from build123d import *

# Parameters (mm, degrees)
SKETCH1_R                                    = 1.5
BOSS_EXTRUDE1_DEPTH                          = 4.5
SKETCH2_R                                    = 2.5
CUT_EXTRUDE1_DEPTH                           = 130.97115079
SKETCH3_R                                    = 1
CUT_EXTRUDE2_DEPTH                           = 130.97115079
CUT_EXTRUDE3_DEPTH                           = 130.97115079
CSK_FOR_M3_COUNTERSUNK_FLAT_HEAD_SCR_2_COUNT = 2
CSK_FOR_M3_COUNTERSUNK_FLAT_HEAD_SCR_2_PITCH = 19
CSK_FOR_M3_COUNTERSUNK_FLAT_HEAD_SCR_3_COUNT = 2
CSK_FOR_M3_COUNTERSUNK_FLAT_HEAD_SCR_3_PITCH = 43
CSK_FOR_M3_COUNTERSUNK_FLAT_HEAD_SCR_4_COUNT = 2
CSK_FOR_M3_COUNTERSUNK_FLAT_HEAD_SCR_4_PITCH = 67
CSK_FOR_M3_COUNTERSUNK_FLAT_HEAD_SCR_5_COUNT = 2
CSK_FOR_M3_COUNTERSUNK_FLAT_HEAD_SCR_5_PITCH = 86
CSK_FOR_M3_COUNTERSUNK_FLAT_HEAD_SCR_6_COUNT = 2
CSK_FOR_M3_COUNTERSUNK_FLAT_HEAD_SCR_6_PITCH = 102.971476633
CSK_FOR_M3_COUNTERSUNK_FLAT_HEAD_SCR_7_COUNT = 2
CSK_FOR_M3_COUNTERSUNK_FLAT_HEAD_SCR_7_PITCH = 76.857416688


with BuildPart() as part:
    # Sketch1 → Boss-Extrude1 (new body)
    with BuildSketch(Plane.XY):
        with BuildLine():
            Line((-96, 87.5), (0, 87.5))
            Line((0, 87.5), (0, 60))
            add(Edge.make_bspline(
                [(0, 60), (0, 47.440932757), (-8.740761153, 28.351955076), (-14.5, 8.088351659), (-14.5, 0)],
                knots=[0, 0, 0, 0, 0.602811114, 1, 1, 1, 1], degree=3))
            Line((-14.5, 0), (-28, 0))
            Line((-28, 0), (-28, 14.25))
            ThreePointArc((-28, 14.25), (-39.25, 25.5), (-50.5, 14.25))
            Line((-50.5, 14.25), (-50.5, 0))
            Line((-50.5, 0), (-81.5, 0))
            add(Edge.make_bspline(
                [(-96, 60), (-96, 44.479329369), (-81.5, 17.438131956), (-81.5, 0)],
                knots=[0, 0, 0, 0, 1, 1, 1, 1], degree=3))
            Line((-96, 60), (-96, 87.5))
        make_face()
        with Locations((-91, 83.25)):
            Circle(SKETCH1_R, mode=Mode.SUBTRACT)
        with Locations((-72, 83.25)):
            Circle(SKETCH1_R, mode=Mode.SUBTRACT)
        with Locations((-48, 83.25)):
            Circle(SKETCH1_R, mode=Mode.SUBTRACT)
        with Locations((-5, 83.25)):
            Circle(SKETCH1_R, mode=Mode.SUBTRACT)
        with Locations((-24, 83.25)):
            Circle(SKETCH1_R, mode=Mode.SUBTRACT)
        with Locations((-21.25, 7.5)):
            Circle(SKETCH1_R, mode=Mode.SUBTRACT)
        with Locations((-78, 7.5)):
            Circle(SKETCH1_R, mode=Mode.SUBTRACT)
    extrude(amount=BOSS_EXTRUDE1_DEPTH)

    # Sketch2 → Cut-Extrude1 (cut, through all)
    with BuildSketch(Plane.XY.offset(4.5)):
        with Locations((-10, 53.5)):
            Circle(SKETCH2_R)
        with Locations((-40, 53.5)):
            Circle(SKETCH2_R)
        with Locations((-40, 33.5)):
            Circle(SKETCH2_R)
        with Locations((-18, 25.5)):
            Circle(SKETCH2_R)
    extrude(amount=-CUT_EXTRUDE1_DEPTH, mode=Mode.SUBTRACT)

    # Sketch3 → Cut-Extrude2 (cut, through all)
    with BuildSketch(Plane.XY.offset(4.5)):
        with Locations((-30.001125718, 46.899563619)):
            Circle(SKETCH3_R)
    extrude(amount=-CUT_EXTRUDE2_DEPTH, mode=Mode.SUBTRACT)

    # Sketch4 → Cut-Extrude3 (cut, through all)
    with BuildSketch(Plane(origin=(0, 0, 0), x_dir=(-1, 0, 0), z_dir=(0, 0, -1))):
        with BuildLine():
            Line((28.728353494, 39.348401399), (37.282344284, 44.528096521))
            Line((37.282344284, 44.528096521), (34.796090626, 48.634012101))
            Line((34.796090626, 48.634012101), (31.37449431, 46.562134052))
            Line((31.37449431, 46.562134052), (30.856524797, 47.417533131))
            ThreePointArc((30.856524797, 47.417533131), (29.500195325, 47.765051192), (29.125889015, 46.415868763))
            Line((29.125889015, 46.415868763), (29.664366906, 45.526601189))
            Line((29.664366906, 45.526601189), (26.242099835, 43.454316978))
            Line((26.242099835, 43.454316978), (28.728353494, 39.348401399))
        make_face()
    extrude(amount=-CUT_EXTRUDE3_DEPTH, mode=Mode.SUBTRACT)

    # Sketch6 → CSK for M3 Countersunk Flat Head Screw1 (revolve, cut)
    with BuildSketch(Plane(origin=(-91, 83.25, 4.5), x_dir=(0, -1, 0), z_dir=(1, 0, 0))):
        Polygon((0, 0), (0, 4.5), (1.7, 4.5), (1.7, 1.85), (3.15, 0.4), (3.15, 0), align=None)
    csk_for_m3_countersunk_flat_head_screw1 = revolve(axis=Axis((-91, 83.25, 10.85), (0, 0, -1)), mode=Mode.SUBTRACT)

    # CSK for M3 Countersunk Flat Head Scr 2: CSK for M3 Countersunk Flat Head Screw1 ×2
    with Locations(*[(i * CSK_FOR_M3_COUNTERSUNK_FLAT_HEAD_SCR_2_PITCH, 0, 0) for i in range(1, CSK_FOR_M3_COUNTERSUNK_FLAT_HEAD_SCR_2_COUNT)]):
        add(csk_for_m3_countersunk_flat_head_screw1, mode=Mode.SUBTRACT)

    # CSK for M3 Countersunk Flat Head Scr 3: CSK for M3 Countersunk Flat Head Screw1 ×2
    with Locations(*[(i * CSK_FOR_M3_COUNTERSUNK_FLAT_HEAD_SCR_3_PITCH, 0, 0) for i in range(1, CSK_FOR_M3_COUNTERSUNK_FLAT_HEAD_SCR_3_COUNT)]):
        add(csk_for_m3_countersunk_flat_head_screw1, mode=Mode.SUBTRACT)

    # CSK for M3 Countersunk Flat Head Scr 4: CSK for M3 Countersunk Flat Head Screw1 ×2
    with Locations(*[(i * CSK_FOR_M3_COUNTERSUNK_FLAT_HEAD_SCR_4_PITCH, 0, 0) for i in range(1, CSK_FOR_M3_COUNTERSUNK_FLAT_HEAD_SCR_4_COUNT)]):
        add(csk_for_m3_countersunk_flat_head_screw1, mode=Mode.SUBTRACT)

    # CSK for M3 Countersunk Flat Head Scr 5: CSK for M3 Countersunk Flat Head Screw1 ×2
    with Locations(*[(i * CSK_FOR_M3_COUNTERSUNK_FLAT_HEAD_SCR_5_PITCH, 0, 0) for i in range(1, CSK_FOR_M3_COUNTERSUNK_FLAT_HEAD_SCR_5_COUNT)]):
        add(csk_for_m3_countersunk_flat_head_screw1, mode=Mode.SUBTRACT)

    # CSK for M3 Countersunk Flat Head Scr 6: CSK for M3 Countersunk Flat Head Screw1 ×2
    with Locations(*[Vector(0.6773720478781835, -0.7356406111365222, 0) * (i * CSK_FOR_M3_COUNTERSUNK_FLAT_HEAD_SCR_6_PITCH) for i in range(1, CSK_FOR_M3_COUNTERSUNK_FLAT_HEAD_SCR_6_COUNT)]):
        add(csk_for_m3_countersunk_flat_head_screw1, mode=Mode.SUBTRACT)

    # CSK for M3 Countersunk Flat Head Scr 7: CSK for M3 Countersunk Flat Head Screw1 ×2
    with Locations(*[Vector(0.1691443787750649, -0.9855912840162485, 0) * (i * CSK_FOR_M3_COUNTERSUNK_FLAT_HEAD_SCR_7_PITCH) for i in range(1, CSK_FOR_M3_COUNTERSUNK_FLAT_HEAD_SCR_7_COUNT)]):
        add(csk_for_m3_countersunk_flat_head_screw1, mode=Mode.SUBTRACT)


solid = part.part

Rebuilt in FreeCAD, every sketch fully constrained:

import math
import FreeCAD as App
import Part
import Sketcher
Q = App.Units.Quantity


def add_polygon(sketch, points):
    """Adds a closed chain of lines whose ends are joined by coincident constraints."""
    first, n = sketch.GeometryCount, len(points)
    for a, b in zip(points, points[1:] + points[:1]):
        sketch.addGeometry(Part.LineSegment(App.Vector(*a, 0), App.Vector(*b, 0)), False)
    for i in range(n):
        sketch.addConstraint(Sketcher.Constraint("Coincident", first + i, 2, first + (i + 1) % n, 1))

doc = App.newDocument("Part")
body = doc.addObject("PartDesign::Body", "Body")

# Sketch on XY plane
sketch1 = doc.addObject("Sketcher::SketchObject", "Sketch")
body.addObject(sketch1)
sketch1.AttachmentSupport = (doc.XY_Plane, [""])
sketch1.MapMode = "FlatFace"
sketch1.addGeometry(Part.LineSegment(App.Vector(0, 87.5, 0), App.Vector(-96, 87.5, 0)), False)
sketch1.addGeometry(Part.LineSegment(App.Vector(-96, 87.5, 0), App.Vector(-96, 60, 0)), False)
sketch1.addGeometry(Part.BSplineCurve([App.Vector(-96, 60, 0), App.Vector(-96, 44.479329, 0), App.Vector(-81.5, 17.438132, 0), App.Vector(-81.5, 0, 0)], [4, 4], [0, 1], False, 3, [1, 1, 1, 1], False), False)
sketch1.addGeometry(Part.LineSegment(App.Vector(-81.5, 0, 0), App.Vector(-50.5, 0, 0)), False)
sketch1.addGeometry(Part.LineSegment(App.Vector(-50.5, 0, 0), App.Vector(-50.5, 14.25, 0)), False)
sketch1.addGeometry(Part.ArcOfCircle(Part.Circle(App.Vector(-39.25, 14.25, 0), App.Vector(0, 0, 1), 11.25), math.radians(0), math.radians(180)), False)
sketch1.addGeometry(Part.LineSegment(App.Vector(-28, 14.25, 0), App.Vector(-28, 0, 0)), False)
sketch1.addGeometry(Part.LineSegment(App.Vector(-28, 0, 0), App.Vector(-14.5, 0, 0)), False)
sketch1.addGeometry(Part.BSplineCurve([App.Vector(0, 60, 0), App.Vector(0, 47.440933, 0), App.Vector(-8.740761, 28.351955, 0), App.Vector(-14.5, 8.088352, 0), App.Vector(-14.5, 0, 0)], [4, 1, 4], [0, 0.602811114, 1], False, 3, [1, 1, 1, 1, 1], False), False)
sketch1.addGeometry(Part.LineSegment(App.Vector(0, 60, 0), App.Vector(0, 87.5, 0)), False)
sketch1.addGeometry(Part.Circle(App.Vector(-21.25, 7.5, 0), App.Vector(0, 0, 1), 1.5), False)
sketch1.addGeometry(Part.Circle(App.Vector(-78, 7.5, 0), App.Vector(0, 0, 1), 1.5), False)
sketch1.addGeometry(Part.Circle(App.Vector(-5, 83.25, 0), App.Vector(0, 0, 1), 1.5), False)
sketch1.addGeometry(Part.Circle(App.Vector(-24, 83.25, 0), App.Vector(0, 0, 1), 1.5), False)
sketch1.addGeometry(Part.Circle(App.Vector(-48, 83.25, 0), App.Vector(0, 0, 1), 1.5), False)
sketch1.addGeometry(Part.Circle(App.Vector(-72, 83.25, 0), App.Vector(0, 0, 1), 1.5), False)
sketch1.addGeometry(Part.Circle(App.Vector(-91, 83.25, 0), App.Vector(0, 0, 1), 1.5), False)
sketch1.addConstraint(Sketcher.Constraint("Block", 2))
sketch1.addConstraint(Sketcher.Constraint("Block", 8))
sketch1.addConstraint(Sketcher.Constraint("Coincident", 0, 2, 1, 1))
sketch1.addConstraint(Sketcher.Constraint("Coincident", 1, 2, 2, 1))
sketch1.addConstraint(Sketcher.Constraint("Coincident", 2, 2, 3, 1))
sketch1.addConstraint(Sketcher.Constraint("Coincident", 3, 2, 4, 1))
sketch1.addConstraint(Sketcher.Constraint("Tangent", 4, 2, 5, 2))
sketch1.addConstraint(Sketcher.Constraint("Tangent", 5, 1, 6, 1))
sketch1.addConstraint(Sketcher.Constraint("Coincident", 6, 2, 7, 1))
sketch1.addConstraint(Sketcher.Constraint("Coincident", 7, 2, 8, 2))
sketch1.addConstraint(Sketcher.Constraint("Coincident", 8, 1, 9, 1))
sketch1.addConstraint(Sketcher.Constraint("Coincident", 9, 2, 0, 1))
sketch1.addConstraint(Sketcher.Constraint("Horizontal", 0))
sketch1.addConstraint(Sketcher.Constraint("Vertical", 1))
sketch1.addConstraint(Sketcher.Constraint("Horizontal", 3))
sketch1.addConstraint(Sketcher.Constraint("Vertical", 4))
sketch1.addConstraint(Sketcher.Constraint("Vertical", 6))
sketch1.addConstraint(Sketcher.Constraint("Horizontal", 7))
sketch1.addConstraint(Sketcher.Constraint("Vertical", 9))
sketch1.addConstraint(Sketcher.Constraint("Equal", 10, 11))
sketch1.addConstraint(Sketcher.Constraint("Equal", 11, 12))
sketch1.addConstraint(Sketcher.Constraint("Equal", 12, 13))
sketch1.addConstraint(Sketcher.Constraint("Equal", 13, 14))
sketch1.addConstraint(Sketcher.Constraint("Equal", 14, 15))
sketch1.addConstraint(Sketcher.Constraint("Equal", 15, 16))
sketch1.addConstraint(Sketcher.Constraint("Horizontal", 10, 3, 11, 3))
sketch1.addConstraint(Sketcher.Constraint("Horizontal", 12, 3, 13, 3))
sketch1.addConstraint(Sketcher.Constraint("Horizontal", 13, 3, 14, 3))
sketch1.addConstraint(Sketcher.Constraint("Horizontal", 14, 3, 15, 3))
sketch1.addConstraint(Sketcher.Constraint("Horizontal", 15, 3, 16, 3))
sketch1.addConstraint(Sketcher.Constraint("Diameter", 10, Q("3 mm")))
sketch1.addConstraint(Sketcher.Constraint("DistanceX", 3, 1, 3, 2, Q("31 mm")))
sketch1.addConstraint(Sketcher.Constraint("Radius", 5, Q("11.25 mm")))
sketch1.addConstraint(Sketcher.Constraint("DistanceY", 1, 2, 1, 1, Q("27.5 mm")))
sketch1.addConstraint(Sketcher.Constraint("DistanceX", 11, 3, -1, 1, Q("78 mm")))
sketch1.addConstraint(Sketcher.Constraint("DistanceX", 12, 3, -1, 1, Q("5 mm")))
sketch1.addConstraint(Sketcher.Constraint("DistanceX", 13, 3, -1, 1, Q("24 mm")))
sketch1.addConstraint(Sketcher.Constraint("DistanceX", 14, 3, -1, 1, Q("48 mm")))
sketch1.addConstraint(Sketcher.Constraint("DistanceX", 15, 3, -1, 1, Q("72 mm")))
sketch1.addConstraint(Sketcher.Constraint("DistanceX", 16, 3, -1, 1, Q("91 mm")))
sketch1.addConstraint(Sketcher.Constraint("DistanceX", 5, 3, 10, 3, Q("18 mm")))
sketch1.addConstraint(Sketcher.Constraint("DistanceY", 5, 3, 12, 3, Q("69 mm")))
sketch1.addConstraint(Sketcher.Constraint("DistanceY", 11, 3, 0, 2, Q("80 mm")))
sketch1.addConstraint(Sketcher.Constraint("DistanceY", 4, 1, 4, 2, Q("14.25 mm")))
pad1 = doc.addObject("PartDesign::Pad", "Pad")
body.addObject(pad1)
pad1.Profile = sketch1
pad1.Length = 4.5

# Sketch on XY plane
sketch2 = doc.addObject("Sketcher::SketchObject", "Sketch001")
body.addObject(sketch2)
sketch2.AttachmentSupport = (doc.XY_Plane, [""])
sketch2.MapMode = "FlatFace"
sketch2.AttachmentOffset = App.Placement(App.Vector(0, 0, 4.5), App.Rotation())
sketch2.addGeometry(Part.Circle(App.Vector(-10, 53.5, 0), App.Vector(0, 0, 1), 2.5), False)
sketch2.addGeometry(Part.Circle(App.Vector(-40, 53.5, 0), App.Vector(0, 0, 1), 2.5), False)
sketch2.addGeometry(Part.Circle(App.Vector(-40, 33.5, 0), App.Vector(0, 0, 1), 2.5), False)
sketch2.addGeometry(Part.Circle(App.Vector(-18, 25.5, 0), App.Vector(0, 0, 1), 2.5), False)
sketch2.addConstraint(Sketcher.Constraint("Equal", 0, 1))
sketch2.addConstraint(Sketcher.Constraint("Equal", 1, 2))
sketch2.addConstraint(Sketcher.Constraint("Equal", 2, 3))
sketch2.addConstraint(Sketcher.Constraint("Horizontal", 0, 3, 1, 3))
sketch2.addConstraint(Sketcher.Constraint("Vertical", 1, 3, 2, 3))
sketch2.addConstraint(Sketcher.Constraint("Diameter", 0, Q("5 mm")))
sketch2.addConstraint(Sketcher.Constraint("DistanceX", 0, 3, -1, 1, Q("10 mm")))
sketch2.addConstraint(Sketcher.Constraint("DistanceX", 1, 3, -1, 1, Q("40 mm")))
sketch2.addConstraint(Sketcher.Constraint("DistanceX", 3, 3, -1, 1, Q("18 mm")))
sketch2.addConstraint(Sketcher.Constraint("DistanceY", 2, 3, 1, 3, Q("20 mm")))
sketch2.addConstraint(Sketcher.Constraint("DistanceY", 3, 3, 2, 3, Q("8 mm")))
sketch2.addConstraint(Sketcher.Constraint("DistanceY", -1, 1, 0, 3, Q("53.5 mm")))
pocket1 = doc.addObject("PartDesign::Pocket", "Pocket")
body.addObject(pocket1)
pocket1.Profile = sketch2
pocket1.Type = "ThroughAll"

# Sketch on XY plane
sketch3 = doc.addObject("Sketcher::SketchObject", "Sketch002")
body.addObject(sketch3)
sketch3.AttachmentSupport = (doc.XY_Plane, [""])
sketch3.MapMode = "FlatFace"
sketch3.AttachmentOffset = App.Placement(App.Vector(0, 0, 4.5), App.Rotation())
sketch3.addGeometry(Part.Circle(App.Vector(-30.001126, 46.899564, 0), App.Vector(0, 0, 1), 1), False)
sketch3.addConstraint(Sketcher.Constraint("Diameter", 0, Q("2 mm")))
sketch3.addConstraint(Sketcher.Constraint("DistanceX", 0, 3, -1, 1, Q("30.001126 mm")))
sketch3.addConstraint(Sketcher.Constraint("DistanceY", -1, 1, 0, 3, Q("46.899564 mm")))
pocket2 = doc.addObject("PartDesign::Pocket", "Pocket001")
body.addObject(pocket2)
pocket2.Profile = sketch3
pocket2.Type = "ThroughAll"

# Sketch on XY plane
sketch4 = doc.addObject("Sketcher::SketchObject", "Sketch003")
body.addObject(sketch4)
sketch4.AttachmentSupport = (doc.XY_Plane, [""])
sketch4.MapMode = "FlatFace"
sketch4.addGeometry(Part.LineSegment(App.Vector(-28.728353, 39.348401, 0), App.Vector(-37.282344, 44.528097, 0)), False)
sketch4.addGeometry(Part.LineSegment(App.Vector(-37.282344, 44.528097, 0), App.Vector(-34.796091, 48.634012, 0)), False)
sketch4.addGeometry(Part.LineSegment(App.Vector(-34.796091, 48.634012, 0), App.Vector(-31.374494, 46.562134, 0)), False)
sketch4.addGeometry(Part.LineSegment(App.Vector(-31.374494, 46.562134, 0), App.Vector(-30.856525, 47.417533, 0)), False)
sketch4.addGeometry(Part.ArcOfCircle(Part.Circle(App.Vector(-30.001126, 46.899564, 0), App.Vector(0, 0, 1), 1), math.radians(-28.926998), math.radians(148.803851)), False)
sketch4.addGeometry(Part.LineSegment(App.Vector(-29.125889, 46.415869, 0), App.Vector(-29.664367, 45.526601, 0)), False)
sketch4.addGeometry(Part.LineSegment(App.Vector(-29.664367, 45.526601, 0), App.Vector(-26.2421, 43.454317, 0)), False)
sketch4.addGeometry(Part.LineSegment(App.Vector(-26.2421, 43.454317, 0), App.Vector(-28.728353, 39.348401, 0)), False)
sketch4.addConstraint(Sketcher.Constraint("Coincident", 0, 2, 1, 1))
sketch4.addConstraint(Sketcher.Constraint("Coincident", 1, 2, 2, 1))
sketch4.addConstraint(Sketcher.Constraint("Coincident", 2, 2, 3, 1))
sketch4.addConstraint(Sketcher.Constraint("Tangent", 3, 2, 4, 2))
sketch4.addConstraint(Sketcher.Constraint("Coincident", 4, 1, 5, 1))
sketch4.addConstraint(Sketcher.Constraint("Coincident", 5, 2, 6, 1))
sketch4.addConstraint(Sketcher.Constraint("Coincident", 6, 2, 7, 1))
sketch4.addConstraint(Sketcher.Constraint("Coincident", 7, 2, 0, 1))
sketch4.addConstraint(Sketcher.Constraint("Perpendicular", 0, 1))
sketch4.addConstraint(Sketcher.Constraint("Perpendicular", 1, 2))
sketch4.addConstraint(Sketcher.Constraint("Perpendicular", 2, 3))
sketch4.addConstraint(Sketcher.Constraint("Parallel", 3, 5))
sketch4.addConstraint(Sketcher.Constraint("Perpendicular", 5, 6))
sketch4.addConstraint(Sketcher.Constraint("Perpendicular", 6, 7))
sketch4.addConstraint(Sketcher.Constraint("Equal", 1, 7))
sketch4.addConstraint(Sketcher.Constraint("Radius", 4, Q("1 mm")))
sketch4.addConstraint(Sketcher.Constraint("Distance", 0, Q("10 mm")))
sketch4.addConstraint(Sketcher.Constraint("Distance", 2, Q("4 mm")))
sketch4.addConstraint(Sketcher.Constraint("Distance", 3, Q("1 mm")))
sketch4.addConstraint(Sketcher.Constraint("Distance", 1, Q("4.8 mm")))
sketch4.addConstraint(Sketcher.Constraint("DistanceY", -1, 1, 5, 2, Q("45.526601 mm")))
sketch4.addConstraint(Sketcher.Constraint("DistanceX", 6, 2, -1, 1, Q("26.2421 mm")))
sketch4.addConstraint(Sketcher.Constraint("DistanceY", -1, 1, 7, 2, Q("39.348401 mm")))
sketch4.addConstraint(Sketcher.Constraint("DistanceX", 3, 2, 4, 3, Q("0.855399 mm")))
pocket3 = doc.addObject("PartDesign::Pocket", "Pocket002")
body.addObject(pocket3)
pocket3.Profile = sketch4
pocket3.Type = "ThroughAll"
pocket3.Reversed = True

# Sketch on YZ plane
sketch5 = doc.addObject("Sketcher::SketchObject", "Sketch004")
body.addObject(sketch5)
sketch5.AttachmentSupport = (doc.YZ_Plane, [""])
sketch5.MapMode = "FlatFace"
sketch5.AttachmentOffset = App.Placement(App.Vector(0, 0, -91), App.Rotation())
add_polygon(sketch5, [(83.25, 0), (83.25, 4.5), (80.1, 4.5), (80.1, 4.1), (81.55, 2.65), (81.55, 0)])  # lines 0-5
sketch5.addGeometry(Part.LineSegment(App.Vector(83.25, 4.5, 0), App.Vector(83.25, 0, 0)), True)  # axis
sketch5.addConstraint(Sketcher.Constraint("Vertical", 0))
sketch5.addConstraint(Sketcher.Constraint("Horizontal", 1))
sketch5.addConstraint(Sketcher.Constraint("Vertical", 2))
sketch5.addConstraint(Sketcher.Constraint("Vertical", 4))
sketch5.addConstraint(Sketcher.Constraint("Horizontal", 5))
sketch5.addConstraint(Sketcher.Constraint("Vertical", 6))
sketch5.addConstraint(Sketcher.Constraint("Coincident", 6, 1, 0, 2))
sketch5.addConstraint(Sketcher.Constraint("PointOnObject", 4, 2, -1))
sketch5.addConstraint(Sketcher.Constraint("PointOnObject", 6, 2, -1))
sketch5.addConstraint(Sketcher.Constraint("Angle", 3, Q("-45 deg")))
sketch5.addConstraint(Sketcher.Constraint("DistanceX", 5, 1, 5, 2, Q("1.7 mm")))
sketch5.addConstraint(Sketcher.Constraint("DistanceY", 0, 1, 0, 2, Q("4.5 mm")))
sketch5.addConstraint(Sketcher.Constraint("DistanceY", 2, 2, 2, 1, Q("0.4 mm")))
sketch5.addConstraint(Sketcher.Constraint("DistanceX", 1, 2, 1, 1, Q("3.15 mm")))
sketch5.addConstraint(Sketcher.Constraint("DistanceX", -1, 1, 1, 2, Q("80.1 mm")))
groove = doc.addObject("PartDesign::Groove", "Groove")
body.addObject(groove)
groove.Profile = sketch5
groove.ReferenceAxis = (sketch5, ["Axis0"])
groove.Angle = 360
doc.recompute()

linearpattern = doc.addObject("PartDesign::LinearPattern", "LinearPattern")
body.addObject(linearpattern)
linearpattern.Originals = [groove]
linearpattern.Direction = (doc.X_Axis, [""])
linearpattern.Mode = "offset"
linearpattern.Offset = 19
linearpattern.Occurrences = 2
body.Tip = linearpattern
doc.recompute()

linearpattern2 = doc.addObject("PartDesign::LinearPattern", "LinearPattern001")
body.addObject(linearpattern2)
linearpattern2.Originals = [groove]
linearpattern2.Direction = (doc.X_Axis, [""])
linearpattern2.Mode = "offset"
linearpattern2.Offset = 43
linearpattern2.Occurrences = 2
body.Tip = linearpattern2
doc.recompute()

linearpattern3 = doc.addObject("PartDesign::LinearPattern", "LinearPattern002")
body.addObject(linearpattern3)
linearpattern3.Originals = [groove]
linearpattern3.Direction = (doc.X_Axis, [""])
linearpattern3.Mode = "offset"
linearpattern3.Offset = 67
linearpattern3.Occurrences = 2
body.Tip = linearpattern3
doc.recompute()

linearpattern4 = doc.addObject("PartDesign::LinearPattern", "LinearPattern003")
body.addObject(linearpattern4)
linearpattern4.Originals = [groove]
linearpattern4.Direction = (doc.X_Axis, [""])
linearpattern4.Mode = "offset"
linearpattern4.Offset = 86
linearpattern4.Occurrences = 2
body.Tip = linearpattern4
doc.recompute()

datumline = doc.addObject("PartDesign::Line", "DatumLine")
body.addObject(datumline)
datumline.Placement = App.Placement(App.Vector(0, 0, 0), App.Rotation(App.Vector(0, 0, 1), App.Vector(0.677372048, -0.735640611, 0)))
linearpattern5 = doc.addObject("PartDesign::LinearPattern", "LinearPattern004")
body.addObject(linearpattern5)
linearpattern5.Originals = [groove]
linearpattern5.Direction = (datumline, [""])
linearpattern5.Mode = "offset"
linearpattern5.Offset = 102.971477
linearpattern5.Occurrences = 2
body.Tip = linearpattern5
doc.recompute()

datumline2 = doc.addObject("PartDesign::Line", "DatumLine001")
body.addObject(datumline2)
datumline2.Placement = App.Placement(App.Vector(0, 0, 0), App.Rotation(App.Vector(0, 0, 1), App.Vector(0.169144379, -0.985591284, 0)))
linearpattern6 = doc.addObject("PartDesign::LinearPattern", "LinearPattern005")
body.addObject(linearpattern6)
linearpattern6.Originals = [groove]
linearpattern6.Direction = (datumline2, [""])
linearpattern6.Mode = "offset"
linearpattern6.Offset = 76.857417
linearpattern6.Occurrences = 2
body.Tip = linearpattern6

doc.recompute()
